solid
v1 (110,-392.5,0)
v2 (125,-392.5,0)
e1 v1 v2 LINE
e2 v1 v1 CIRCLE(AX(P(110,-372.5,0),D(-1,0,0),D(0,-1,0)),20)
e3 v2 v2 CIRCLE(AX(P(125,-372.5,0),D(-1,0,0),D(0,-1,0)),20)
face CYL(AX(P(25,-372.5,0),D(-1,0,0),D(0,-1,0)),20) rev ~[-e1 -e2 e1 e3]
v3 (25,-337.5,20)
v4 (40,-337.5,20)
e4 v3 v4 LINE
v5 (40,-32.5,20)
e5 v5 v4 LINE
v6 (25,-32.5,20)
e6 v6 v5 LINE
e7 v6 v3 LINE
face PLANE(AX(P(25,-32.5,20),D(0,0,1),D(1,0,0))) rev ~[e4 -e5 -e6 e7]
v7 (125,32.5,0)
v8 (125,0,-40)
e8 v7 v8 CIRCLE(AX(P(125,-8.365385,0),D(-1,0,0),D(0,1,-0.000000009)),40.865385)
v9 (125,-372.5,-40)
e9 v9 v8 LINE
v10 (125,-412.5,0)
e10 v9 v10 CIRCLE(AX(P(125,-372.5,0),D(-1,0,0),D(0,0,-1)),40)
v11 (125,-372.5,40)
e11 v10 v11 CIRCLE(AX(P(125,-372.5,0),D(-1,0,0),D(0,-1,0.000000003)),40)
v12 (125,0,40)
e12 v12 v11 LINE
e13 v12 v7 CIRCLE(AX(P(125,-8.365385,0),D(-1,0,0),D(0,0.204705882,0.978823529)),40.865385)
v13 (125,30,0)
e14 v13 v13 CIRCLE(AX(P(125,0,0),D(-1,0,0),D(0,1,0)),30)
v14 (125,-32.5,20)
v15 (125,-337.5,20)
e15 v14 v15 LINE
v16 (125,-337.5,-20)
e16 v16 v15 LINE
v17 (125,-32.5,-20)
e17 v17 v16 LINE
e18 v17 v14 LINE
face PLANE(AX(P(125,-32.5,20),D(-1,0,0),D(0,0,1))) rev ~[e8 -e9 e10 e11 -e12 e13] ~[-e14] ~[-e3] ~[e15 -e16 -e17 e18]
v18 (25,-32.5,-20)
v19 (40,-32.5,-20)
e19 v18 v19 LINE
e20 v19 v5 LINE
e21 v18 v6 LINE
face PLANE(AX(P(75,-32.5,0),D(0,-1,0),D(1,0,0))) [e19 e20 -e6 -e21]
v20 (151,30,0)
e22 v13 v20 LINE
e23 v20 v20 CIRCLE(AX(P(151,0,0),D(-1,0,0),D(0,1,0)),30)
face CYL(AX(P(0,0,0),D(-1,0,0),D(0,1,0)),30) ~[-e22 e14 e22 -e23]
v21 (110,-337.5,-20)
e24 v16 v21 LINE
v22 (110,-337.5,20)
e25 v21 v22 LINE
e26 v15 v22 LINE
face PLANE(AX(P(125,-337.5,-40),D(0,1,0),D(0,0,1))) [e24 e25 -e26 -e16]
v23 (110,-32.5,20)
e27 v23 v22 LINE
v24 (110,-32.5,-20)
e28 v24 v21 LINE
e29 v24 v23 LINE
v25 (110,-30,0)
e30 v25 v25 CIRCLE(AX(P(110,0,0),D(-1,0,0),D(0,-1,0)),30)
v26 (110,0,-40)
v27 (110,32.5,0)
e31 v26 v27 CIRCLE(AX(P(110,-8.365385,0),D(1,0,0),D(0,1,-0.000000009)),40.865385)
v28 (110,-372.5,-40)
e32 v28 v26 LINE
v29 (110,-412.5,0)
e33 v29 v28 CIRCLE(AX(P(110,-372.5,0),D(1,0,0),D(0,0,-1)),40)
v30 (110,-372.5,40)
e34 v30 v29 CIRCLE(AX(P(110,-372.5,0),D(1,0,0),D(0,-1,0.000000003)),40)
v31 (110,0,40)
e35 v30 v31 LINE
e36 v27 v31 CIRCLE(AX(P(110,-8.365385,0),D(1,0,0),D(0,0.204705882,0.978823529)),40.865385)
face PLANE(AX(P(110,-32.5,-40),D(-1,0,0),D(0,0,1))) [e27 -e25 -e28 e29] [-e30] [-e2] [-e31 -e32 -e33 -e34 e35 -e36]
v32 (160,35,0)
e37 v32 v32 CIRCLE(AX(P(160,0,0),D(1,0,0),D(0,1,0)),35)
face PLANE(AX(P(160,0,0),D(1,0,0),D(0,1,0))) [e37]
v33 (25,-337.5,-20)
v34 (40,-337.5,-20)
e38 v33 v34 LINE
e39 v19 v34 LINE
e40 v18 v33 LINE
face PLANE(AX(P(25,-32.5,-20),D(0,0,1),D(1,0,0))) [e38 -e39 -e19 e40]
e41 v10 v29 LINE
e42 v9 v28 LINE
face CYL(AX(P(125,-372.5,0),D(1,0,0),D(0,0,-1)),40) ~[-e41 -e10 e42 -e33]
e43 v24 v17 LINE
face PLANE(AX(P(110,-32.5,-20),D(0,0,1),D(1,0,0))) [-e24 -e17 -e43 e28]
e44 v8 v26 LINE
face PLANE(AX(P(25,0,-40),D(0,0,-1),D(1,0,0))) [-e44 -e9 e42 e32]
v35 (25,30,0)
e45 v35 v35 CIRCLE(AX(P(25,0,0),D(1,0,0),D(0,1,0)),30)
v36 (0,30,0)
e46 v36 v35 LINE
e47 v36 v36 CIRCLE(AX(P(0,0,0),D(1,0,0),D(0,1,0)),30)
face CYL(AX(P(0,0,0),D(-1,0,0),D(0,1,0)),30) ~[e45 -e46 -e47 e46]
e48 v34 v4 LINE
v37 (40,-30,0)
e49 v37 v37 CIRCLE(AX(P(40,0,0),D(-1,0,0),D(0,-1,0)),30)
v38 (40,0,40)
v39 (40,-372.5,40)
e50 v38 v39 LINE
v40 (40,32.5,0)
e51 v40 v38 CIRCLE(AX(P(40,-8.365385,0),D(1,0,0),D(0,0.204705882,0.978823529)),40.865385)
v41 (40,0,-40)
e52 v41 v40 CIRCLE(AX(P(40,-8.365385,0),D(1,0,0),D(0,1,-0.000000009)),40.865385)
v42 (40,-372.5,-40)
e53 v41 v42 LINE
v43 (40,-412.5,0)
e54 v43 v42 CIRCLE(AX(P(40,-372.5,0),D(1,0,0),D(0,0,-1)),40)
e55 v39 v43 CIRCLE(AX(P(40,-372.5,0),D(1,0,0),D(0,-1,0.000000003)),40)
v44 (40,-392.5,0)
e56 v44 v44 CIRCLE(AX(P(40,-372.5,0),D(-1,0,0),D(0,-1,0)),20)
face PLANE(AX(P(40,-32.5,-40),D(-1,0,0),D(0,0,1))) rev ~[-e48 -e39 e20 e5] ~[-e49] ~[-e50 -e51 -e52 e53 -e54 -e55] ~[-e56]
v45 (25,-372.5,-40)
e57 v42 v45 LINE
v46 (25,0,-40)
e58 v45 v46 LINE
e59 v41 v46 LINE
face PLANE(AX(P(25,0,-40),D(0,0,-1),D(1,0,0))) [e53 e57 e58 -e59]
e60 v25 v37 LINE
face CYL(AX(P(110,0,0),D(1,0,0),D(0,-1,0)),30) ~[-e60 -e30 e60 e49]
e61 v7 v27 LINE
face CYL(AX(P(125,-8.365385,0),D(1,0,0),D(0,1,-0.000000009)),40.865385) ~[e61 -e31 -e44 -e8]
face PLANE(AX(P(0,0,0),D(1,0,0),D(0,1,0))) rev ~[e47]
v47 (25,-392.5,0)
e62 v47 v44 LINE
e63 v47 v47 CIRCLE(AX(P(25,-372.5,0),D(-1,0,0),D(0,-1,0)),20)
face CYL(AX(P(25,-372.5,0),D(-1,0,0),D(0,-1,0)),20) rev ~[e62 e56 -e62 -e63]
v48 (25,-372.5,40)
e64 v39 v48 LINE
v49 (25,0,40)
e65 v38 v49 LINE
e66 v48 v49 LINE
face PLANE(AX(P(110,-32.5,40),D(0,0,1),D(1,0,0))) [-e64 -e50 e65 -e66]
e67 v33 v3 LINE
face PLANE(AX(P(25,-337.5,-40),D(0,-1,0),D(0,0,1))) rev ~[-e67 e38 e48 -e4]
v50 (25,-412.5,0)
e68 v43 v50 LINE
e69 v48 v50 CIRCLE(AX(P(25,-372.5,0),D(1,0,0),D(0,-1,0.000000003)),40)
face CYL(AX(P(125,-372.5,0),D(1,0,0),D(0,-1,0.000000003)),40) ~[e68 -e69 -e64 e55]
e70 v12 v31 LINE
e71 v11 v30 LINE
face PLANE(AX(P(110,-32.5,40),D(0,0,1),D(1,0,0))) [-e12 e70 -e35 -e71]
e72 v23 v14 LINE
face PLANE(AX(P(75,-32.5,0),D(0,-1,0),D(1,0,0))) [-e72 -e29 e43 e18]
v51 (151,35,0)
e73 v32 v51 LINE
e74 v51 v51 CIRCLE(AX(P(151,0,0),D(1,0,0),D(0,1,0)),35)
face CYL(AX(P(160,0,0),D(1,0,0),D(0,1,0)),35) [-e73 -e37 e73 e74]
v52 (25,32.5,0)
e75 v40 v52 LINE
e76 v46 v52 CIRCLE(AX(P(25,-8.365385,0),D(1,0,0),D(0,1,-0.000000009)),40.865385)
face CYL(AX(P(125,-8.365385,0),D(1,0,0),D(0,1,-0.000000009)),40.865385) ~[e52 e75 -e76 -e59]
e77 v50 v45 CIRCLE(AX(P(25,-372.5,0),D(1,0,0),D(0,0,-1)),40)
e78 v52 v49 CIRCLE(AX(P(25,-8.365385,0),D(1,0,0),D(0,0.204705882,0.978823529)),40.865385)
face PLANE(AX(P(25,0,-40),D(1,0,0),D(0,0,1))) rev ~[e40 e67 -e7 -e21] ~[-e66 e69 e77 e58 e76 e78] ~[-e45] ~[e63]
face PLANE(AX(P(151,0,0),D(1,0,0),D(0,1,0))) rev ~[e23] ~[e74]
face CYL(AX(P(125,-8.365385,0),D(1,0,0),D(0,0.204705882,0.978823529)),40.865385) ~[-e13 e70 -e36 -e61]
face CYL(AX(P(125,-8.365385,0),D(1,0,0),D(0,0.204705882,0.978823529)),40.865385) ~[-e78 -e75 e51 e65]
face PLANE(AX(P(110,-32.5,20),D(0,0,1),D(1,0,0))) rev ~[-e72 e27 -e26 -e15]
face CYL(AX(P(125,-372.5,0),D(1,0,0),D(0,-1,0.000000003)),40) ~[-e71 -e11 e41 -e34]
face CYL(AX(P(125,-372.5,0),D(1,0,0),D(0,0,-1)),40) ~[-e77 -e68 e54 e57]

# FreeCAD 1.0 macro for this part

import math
import FreeCAD as App
import Part
import Sketcher
Q = App.Units.Quantity


def add_polygon(sketch, points):
    """Adds a closed chain of lines whose ends are joined by coincident constraints."""
    first, n = sketch.GeometryCount, len(points)
    for a, b in zip(points, points[1:] + points[:1]):
        sketch.addGeometry(Part.LineSegment(App.Vector(*a, 0), App.Vector(*b, 0)), False)
    for i in range(n):
        sketch.addConstraint(Sketcher.Constraint("Coincident", first + i, 2, first + (i + 1) % n, 1))

doc = App.newDocument("Part")
params = doc.addObject("Spreadsheet::Sheet", "Params")
for row, (alias, value) in enumerate([
    ("sketch1_diameter", "60 mm"),
    ("pad1_length", "160 mm"),
    ("sketch2_width", "100 mm"),
    ("sketch2_height", "80 mm"),
    ("pad2_length", "32.5 mm"),
    ("pad2_length2", "32.5 mm"),
    ("sketch3_width", "15 mm"),
    ("sketch3_height", "20 mm"),
    ("pad3_length", "380 mm"),
    ("sketch4_width", "75 mm"),
    ("sketch4_height", "80 mm"),
    ("pad4_length", "15 mm"),
    ("sketch5_width", "75 mm"),
    ("sketch5_height", "80 mm"),
    ("pad5_length", "15 mm"),
    ("sketch6_diameter", "40 mm"),
    ("sketch7_radius", "40 mm"),
    ("sketch8_width", "70 mm"),
    ("sketch8_height", "80 mm"),
    ("sketch9_height", "40 mm"),
    ("sketch9_width", "32.5 mm"),
    ("sketch10_diameter", "60 mm"),
    ("pad6_length", "70 mm"),
    ("sketch11_diameter", "70 mm"),
    ("pad7_length", "9 mm"),
], start=1):
    params.set(f"A{row}", alias)
    params.set(f"B{row}", "=" + value)
    params.setAlias(f"B{row}", alias)

body = doc.addObject("PartDesign::Body", "Body")
body.AllowCompound = True

sketch1 = body.newObject("Sketcher::SketchObject", "Sketch")
sketch1.AttachmentSupport = (doc.getObject("YZ_Plane"), [""])
sketch1.MapMode = "FlatFace"
sketch1.addGeometry(Part.Circle(App.Vector(0, 0, 0), App.Vector(0, 0, 1), 30), False)
sketch1.addConstraint(Sketcher.Constraint("Coincident", 0, 3, -1, 1))
sketch1.addConstraint(Sketcher.Constraint("Diameter", 0, Q("60 mm")))
sketch1.setExpression("Constraints[1]", "Params.sketch1_diameter")
pad1 = body.newObject("PartDesign::Pad", "Pad")
pad1.Profile = sketch1
pad1.setExpression("Length", "Params.pad1_length")

sketch2 = body.newObject("Sketcher::SketchObject", "Sketch001")
sketch2.AttachmentSupport = (doc.getObject("XZ_Plane"), [""])
sketch2.MapMode = "FlatFace"
add_polygon(sketch2, [(25, 40), (25, -40), (125, -40), (125, 40)])
sketch2.addConstraint(Sketcher.Constraint("Vertical", 0))
sketch2.addConstraint(Sketcher.Constraint("Horizontal", 1))
sketch2.addConstraint(Sketcher.Constraint("Vertical", 2))
sketch2.addConstraint(Sketcher.Constraint("Horizontal", 3))
sketch2.addConstraint(Sketcher.Constraint("DistanceX", 1, 1, 1, 2, Q("100 mm")))
sketch2.addConstraint(Sketcher.Constraint("DistanceY", 0, 2, 0, 1, Q("80 mm")))
sketch2.addConstraint(Sketcher.Constraint("DistanceX", -1, 1, 0, 2, Q("25 mm")))
sketch2.addConstraint(Sketcher.Constraint("DistanceY", 0, 2, -1, 1, Q("40 mm")))
sketch2.setExpression("Constraints[8]", "Params.sketch2_width")
sketch2.setExpression("Constraints[9]", "Params.sketch2_height")
pad2 = body.newObject("PartDesign::Pad", "Pad001")
pad2.Profile = sketch2
pad2.Type = "TwoLengths"
pad2.setExpression("Length", "Params.pad2_length")
pad2.setExpression("Length2", "Params.pad2_length2")

sketch3 = body.newObject("Sketcher::SketchObject", "Sketch002")
sketch3.AttachmentSupport = (doc.getObject("XZ_Plane"), [""])
sketch3.MapMode = "FlatFace"
sketch3.AttachmentOffset = App.Placement(App.Vector(0, 0, 32.5), App.Rotation())
add_polygon(sketch3, [(110, 40), (110, 20), (125, 20), (125, 40)])
add_polygon(sketch3, [(110, -20), (110, -40), (125, -40), (125, -20)])
add_polygon(sketch3, [(25, 40), (25, 20), (40, 20), (40, 40)])
add_polygon(sketch3, [(25, -20), (25, -40), (40, -40), (40, -20)])
sketch3.addConstraint(Sketcher.Constraint("Vertical", 0))
sketch3.addConstraint(Sketcher.Constraint("Horizontal", 1))
sketch3.addConstraint(Sketcher.Constraint("Vertical", 2))
sketch3.addConstraint(Sketcher.Constraint("Horizontal", 3))
sketch3.addConstraint(Sketcher.Constraint("Vertical", 4))
sketch3.addConstraint(Sketcher.Constraint("Horizontal", 5))
sketch3.addConstraint(Sketcher.Constraint("Vertical", 6))
sketch3.addConstraint(Sketcher.Constraint("Horizontal", 7))
sketch3.addConstraint(Sketcher.Constraint("Vertical", 8))
sketch3.addConstraint(Sketcher.Constraint("Horizontal", 9))
sketch3.addConstraint(Sketcher.Constraint("Vertical", 10))
sketch3.addConstraint(Sketcher.Constraint("Horizontal", 11))
sketch3.addConstraint(Sketcher.Constraint("Vertical", 12))
sketch3.addConstraint(Sketcher.Constraint("Horizontal", 13))
sketch3.addConstraint(Sketcher.Constraint("Vertical", 14))
sketch3.addConstraint(Sketcher.Constraint("Horizontal", 15))
sketch3.addConstraint(Sketcher.Constraint("Symmetric", 3, 2, 4, 2, -1))
sketch3.addConstraint(Sketcher.Constraint("Symmetric", 1, 2, 6, 2, -1))
sketch3.addConstraint(Sketcher.Constraint("Symmetric", 11, 2, 12, 2, -1))
sketch3.addConstraint(Sketcher.Constraint("Symmetric", 9, 2, 14, 2, -1))
sketch3.addConstraint(Sketcher.Constraint("Horizontal", 1, 2, 8, 2))
sketch3.addConstraint(Sketcher.Constraint("Horizontal", 3, 2, 10, 2))
sketch3.addConstraint(Sketcher.Constraint("Equal", 7, 9))
sketch3.addConstraint(Sketcher.Constraint("DistanceX", 1, 1, 1, 2, Q("15 mm")))
sketch3.addConstraint(Sketcher.Constraint("DistanceY", 0, 2, 0, 1, Q("20 mm")))
sketch3.addConstraint(Sketcher.Constraint("DistanceX", -1, 1, 0, 2, Q("110 mm")))
sketch3.addConstraint(Sketcher.Constraint("DistanceY", -1, 1, 0, 2, Q("20 mm")))
sketch3.addConstraint(Sketcher.Constraint("DistanceX", -1, 1, 8, 2, Q("25 mm")))
sketch3.setExpression("Constraints[39]", "Params.sketch3_width")
sketch3.setExpression("Constraints[40]", "Params.sketch3_height")
pad3 = body.newObject("PartDesign::Pad", "Pad002")
pad3.Profile = sketch3
pad3.setExpression("Length", "Params.pad3_length")

sketch4 = body.newObject("Sketcher::SketchObject", "Sketch003")
sketch4.AttachmentSupport = (doc.getObject("YZ_Plane"), [""])
sketch4.MapMode = "FlatFace"
sketch4.AttachmentOffset = App.Placement(App.Vector(0, 0, 125), App.Rotation())
add_polygon(sketch4, [(-412, 40), (-412, -40), (-338, -40), (-338, 40)])
sketch4.addConstraint(Sketcher.Constraint("Vertical", 0))
sketch4.addConstraint(Sketcher.Constraint("Horizontal", 1))
sketch4.addConstraint(Sketcher.Constraint("Vertical", 2))
sketch4.addConstraint(Sketcher.Constraint("Horizontal", 3))
sketch4.addConstraint(Sketcher.Constraint("DistanceX", 1, 1, 1, 2, Q("75 mm")))
sketch4.addConstraint(Sketcher.Constraint("DistanceY", 0, 2, 0, 1, Q("80 mm")))
sketch4.addConstraint(Sketcher.Constraint("DistanceY", 0, 2, -1, 1, Q("40 mm")))
sketch4.addConstraint(Sketcher.Constraint("DistanceX", 0, 2, -1, 1, Q("412.5 mm")))
sketch4.setExpression("Constraints[8]", "Params.sketch4_width")
sketch4.setExpression("Constraints[9]", "Params.sketch4_height")
pad4 = body.newObject("PartDesign::Pad", "Pad003")
pad4.Profile = sketch4
pad4.setExpression("Length", "Params.pad4_length")
pad4.Reversed = True

sketch5 = body.newObject("Sketcher::SketchObject", "Sketch004")
sketch5.AttachmentSupport = (doc.getObject("YZ_Plane"), [""])
sketch5.MapMode = "FlatFace"
sketch5.AttachmentOffset = App.Placement(App.Vector(0, 0, 25), App.Rotation())
add_polygon(sketch5, [(-338, 40), (-338, -40), (-412, -40), (-412, 40)])
sketch5.addConstraint(Sketcher.Constraint("Vertical", 0))
sketch5.addConstraint(Sketcher.Constraint("Horizontal", 1))
sketch5.addConstraint(Sketcher.Constraint("Vertical", 2))
sketch5.addConstraint(Sketcher.Constraint("Horizontal", 3))
sketch5.addConstraint(Sketcher.Constraint("DistanceX", 1, 2, 1, 1, Q("75 mm")))
sketch5.addConstraint(Sketcher.Constraint("DistanceY", 0, 2, 0, 1, Q("80 mm")))
sketch5.addConstraint(Sketcher.Constraint("DistanceY", 0, 2, -1, 1, Q("40 mm")))
sketch5.addConstraint(Sketcher.Constraint("DistanceX", 0, 2, -1, 1, Q("337.5 mm")))
sketch5.setExpression("Constraints[8]", "Params.sketch5_width")
sketch5.setExpression("Constraints[9]", "Params.sketch5_height")
pad5 = body.newObject("PartDesign::Pad", "Pad004")
pad5.Profile = sketch5
pad5.setExpression("Length", "Params.pad5_length")

sketch6 = body.newObject("Sketcher::SketchObject", "Sketch005")
sketch6.AttachmentSupport = (doc.getObject("YZ_Plane"), [""])
sketch6.MapMode = "FlatFace"
sketch6.AttachmentOffset = App.Placement(App.Vector(0, 0, 25), App.Rotation())
sketch6.addGeometry(Part.Circle(App.Vector(-372, 0, 0), App.Vector(0, 0, 1), 20), False)
sketch6.addConstraint(Sketcher.Constraint("PointOnObject", 0, 3, -1))
sketch6.addConstraint(Sketcher.Constraint("Diameter", 0, Q("40 mm")))
sketch6.addConstraint(Sketcher.Constraint("DistanceX", 0, 3, -1, 1, Q("372.5 mm")))
sketch6.setExpression("Constraints[1]", "Params.sketch6_diameter")
pocket1 = body.newObject("PartDesign::Pocket", "Pocket")
pocket1.Profile = sketch6
pocket1.Type = "ThroughAll"
pocket1.Reversed = True

sketch7 = body.newObject("Sketcher::SketchObject", "Sketch006")
sketch7.AttachmentSupport = (doc.getObject("YZ_Plane"), [""])
sketch7.MapMode = "FlatFace"
sketch7.AttachmentOffset = App.Placement(App.Vector(0, 0, 125), App.Rotation())
sketch7.addGeometry(Part.ArcOfCircle(Part.Circle(App.Vector(-372, 0, 0), App.Vector(0, 0, 1), 40), math.radians(180), math.radians(270)), False)
sketch7.addGeometry(Part.LineSegment(App.Vector(-412, 0, 0), App.Vector(-412, -40, 0)), False)
sketch7.addGeometry(Part.LineSegment(App.Vector(-412, -40, 0), App.Vector(-372, -40, 0)), False)
sketch7.addGeometry(Part.ArcOfCircle(Part.Circle(App.Vector(-372, 0, 0), App.Vector(0, 0, 1), 40), math.radians(90), math.radians(180)), False)
sketch7.addGeometry(Part.LineSegment(App.Vector(-372, 40, 0), App.Vector(-412, 40, 0)), False)
sketch7.addGeometry(Part.LineSegment(App.Vector(-412, 40, 0), App.Vector(-412, 0, 0)), False)
sketch7.addConstraint(Sketcher.Constraint("Tangent", 0, 1, 1, 1))
sketch7.addConstraint(Sketcher.Constraint("Coincident", 1, 2, 2, 1))
sketch7.addConstraint(Sketcher.Constraint("Tangent", 2, 2, 0, 2))
sketch7.addConstraint(Sketcher.Constraint("Tangent", 3, 1, 4, 1))
sketch7.addConstraint(Sketcher.Constraint("Coincident", 4, 2, 5, 1))
sketch7.addConstraint(Sketcher.Constraint("Tangent", 5, 2, 3, 2))
sketch7.addConstraint(Sketcher.Constraint("Vertical", 1))
sketch7.addConstraint(Sketcher.Constraint("Horizontal", 2))
sketch7.addConstraint(Sketcher.Constraint("Horizontal", 4))
sketch7.addConstraint(Sketcher.Constraint("Vertical", 5))
sketch7.addConstraint(Sketcher.Constraint("Coincident", 3, 3, 0, 3))
sketch7.addConstraint(Sketcher.Constraint("Equal", 0, 3))
sketch7.addConstraint(Sketcher.Constraint("PointOnObject", 0, 3, -1))
sketch7.addConstraint(Sketcher.Constraint("Radius", 0, Q("40 mm")))
sketch7.addConstraint(Sketcher.Constraint("DistanceX", 0, 3, -1, 1, Q("372.5 mm")))
sketch7.setExpression("Constraints[13]", "Params.sketch7_radius")
pocket2 = body.newObject("PartDesign::Pocket", "Pocket001")
pocket2.Profile = sketch7
pocket2.Type = "ThroughAll"

sketch8 = body.newObject("Sketcher::SketchObject", "Sketch007")
sketch8.AttachmentSupport = (doc.getObject("XZ_Plane"), [""])
sketch8.MapMode = "FlatFace"
sketch8.AttachmentOffset = App.Placement(App.Vector(0, 0, 32.5), App.Rotation())
add_polygon(sketch8, [(40, 40), (40, -40), (110, -40), (110, 40)])
sketch8.addConstraint(Sketcher.Constraint("Vertical", 0))
sketch8.addConstraint(Sketcher.Constraint("Horizontal", 1))
sketch8.addConstraint(Sketcher.Constraint("Vertical", 2))
sketch8.addConstraint(Sketcher.Constraint("Horizontal", 3))
sketch8.addConstraint(Sketcher.Constraint("DistanceX", 1, 1, 1, 2, Q("70 mm")))
sketch8.addConstraint(Sketcher.Constraint("DistanceY", 0, 2, 0, 1, Q("80 mm")))
sketch8.addConstraint(Sketcher.Constraint("DistanceX", -1, 1, 0, 2, Q("40 mm")))
sketch8.addConstraint(Sketcher.Constraint("DistanceY", 0, 2, -1, 1, Q("40 mm")))
sketch8.setExpression("Constraints[8]", "Params.sketch8_width")
sketch8.setExpression("Constraints[9]", "Params.sketch8_height")
pocket3 = body.newObject("PartDesign::Pocket", "Pocket002")
pocket3.Profile = sketch8
pocket3.Type = "ThroughAll"

sketch9 = body.newObject("Sketcher::SketchObject", "Sketch008")
sketch9.AttachmentSupport = (doc.getObject("YZ_Plane"), [""])
sketch9.MapMode = "FlatFace"
sketch9.AttachmentOffset = App.Placement(App.Vector(0, 0, 125), App.Rotation())
sketch9.addGeometry(Part.ArcOfCircle(Part.Circle(App.Vector(-8, 0, 0), App.Vector(0, 0, 1), 41), math.radians(0), math.radians(78)), False)
sketch9.addGeometry(Part.LineSegment(App.Vector(32, 0, 0), App.Vector(32, 40, 0)), False)
sketch9.addGeometry(Part.LineSegment(App.Vector(32, 40, 0), App.Vector(0, 40, 0)), False)
sketch9.addGeometry(Part.ArcOfCircle(Part.Circle(App.Vector(-8, 0, 0), App.Vector(0, 0, 1), 41), math.radians(-78), math.radians(0)), False)
sketch9.addGeometry(Part.LineSegment(App.Vector(0, -40, 0), App.Vector(32, -40, 0)), False)
sketch9.addGeometry(Part.LineSegment(App.Vector(32, -40, 0), App.Vector(32, 0, 0)), False)
sketch9.addConstraint(Sketcher.Constraint("Tangent", 0, 1, 1, 1))
sketch9.addConstraint(Sketcher.Constraint("Coincident", 1, 2, 2, 1))
sketch9.addConstraint(Sketcher.Constraint("Coincident", 2, 2, 0, 2))
sketch9.addConstraint(Sketcher.Constraint("Coincident", 3, 1, 4, 1))
sketch9.addConstraint(Sketcher.Constraint("Coincident", 4, 2, 5, 1))
sketch9.addConstraint(Sketcher.Constraint("Tangent", 5, 2, 3, 2))
sketch9.addConstraint(Sketcher.Constraint("Vertical", 1))
sketch9.addConstraint(Sketcher.Constraint("Horizontal", 2))
sketch9.addConstraint(Sketcher.Constraint("Horizontal", 4))
sketch9.addConstraint(Sketcher.Constraint("Vertical", 5))
sketch9.addConstraint(Sketcher.Constraint("Coincident", 3, 3, 0, 3))
sketch9.addConstraint(Sketcher.Constraint("Equal", 0, 3))
sketch9.addConstraint(Sketcher.Constraint("Symmetric", 2, 2, 3, 1, -1, 1))
sketch9.addConstraint(Sketcher.Constraint("PointOnObject", 0, 3, -1))
sketch9.addConstraint(Sketcher.Constraint("DistanceY", 1, 1, 1, 2, Q("40 mm")))
sketch9.addConstraint(Sketcher.Constraint("DistanceX", 2, 2, 2, 1, Q("32.5 mm")))
sketch9.setExpression("Constraints[14]", "Params.sketch9_height")
sketch9.setExpression("Constraints[15]", "Params.sketch9_width")
pocket4 = body.newObject("PartDesign::Pocket", "Pocket003")
pocket4.Profile = sketch9
pocket4.Type = "ThroughAll"

sketch10 = body.newObject("Sketcher::SketchObject", "Sketch009")
sketch10.AttachmentSupport = (doc.getObject("YZ_Plane"), [""])
sketch10.MapMode = "FlatFace"
sketch10.AttachmentOffset = App.Placement(App.Vector(0, 0, 110), App.Rotation())
sketch10.addGeometry(Part.Circle(App.Vector(0, 0, 0), App.Vector(0, 0, 1), 30), False)
sketch10.addConstraint(Sketcher.Constraint("Coincident", 0, 3, -1, 1))
sketch10.addConstraint(Sketcher.Constraint("Diameter", 0, Q("60 mm")))
sketch10.setExpression("Constraints[1]", "Params.sketch10_diameter")
pad6 = body.newObject("PartDesign::Pad", "Pad005")
pad6.Profile = sketch10
pad6.setExpression("Length", "Params.pad6_length")
pad6.Reversed = True

sketch11 = body.newObject("Sketcher::SketchObject", "Sketch010")
sketch11.AttachmentSupport = (doc.getObject("YZ_Plane"), [""])
sketch11.MapMode = "FlatFace"
sketch11.AttachmentOffset = App.Placement(App.Vector(0, 0, 160), App.Rotation())
sketch11.addGeometry(Part.Circle(App.Vector(0, 0, 0), App.Vector(0, 0, 1), 35), False)
sketch11.addConstraint(Sketcher.Constraint("Coincident", 0, 3, -1, 1))
sketch11.addConstraint(Sketcher.Constraint("Diameter", 0, Q("70 mm")))
sketch11.setExpression("Constraints[1]", "Params.sketch11_diameter")
pad7 = body.newObject("PartDesign::Pad", "Pad006")
pad7.Profile = sketch11
pad7.setExpression("Length", "Params.pad7_length")
pad7.Reversed = True

doc.recompute()
